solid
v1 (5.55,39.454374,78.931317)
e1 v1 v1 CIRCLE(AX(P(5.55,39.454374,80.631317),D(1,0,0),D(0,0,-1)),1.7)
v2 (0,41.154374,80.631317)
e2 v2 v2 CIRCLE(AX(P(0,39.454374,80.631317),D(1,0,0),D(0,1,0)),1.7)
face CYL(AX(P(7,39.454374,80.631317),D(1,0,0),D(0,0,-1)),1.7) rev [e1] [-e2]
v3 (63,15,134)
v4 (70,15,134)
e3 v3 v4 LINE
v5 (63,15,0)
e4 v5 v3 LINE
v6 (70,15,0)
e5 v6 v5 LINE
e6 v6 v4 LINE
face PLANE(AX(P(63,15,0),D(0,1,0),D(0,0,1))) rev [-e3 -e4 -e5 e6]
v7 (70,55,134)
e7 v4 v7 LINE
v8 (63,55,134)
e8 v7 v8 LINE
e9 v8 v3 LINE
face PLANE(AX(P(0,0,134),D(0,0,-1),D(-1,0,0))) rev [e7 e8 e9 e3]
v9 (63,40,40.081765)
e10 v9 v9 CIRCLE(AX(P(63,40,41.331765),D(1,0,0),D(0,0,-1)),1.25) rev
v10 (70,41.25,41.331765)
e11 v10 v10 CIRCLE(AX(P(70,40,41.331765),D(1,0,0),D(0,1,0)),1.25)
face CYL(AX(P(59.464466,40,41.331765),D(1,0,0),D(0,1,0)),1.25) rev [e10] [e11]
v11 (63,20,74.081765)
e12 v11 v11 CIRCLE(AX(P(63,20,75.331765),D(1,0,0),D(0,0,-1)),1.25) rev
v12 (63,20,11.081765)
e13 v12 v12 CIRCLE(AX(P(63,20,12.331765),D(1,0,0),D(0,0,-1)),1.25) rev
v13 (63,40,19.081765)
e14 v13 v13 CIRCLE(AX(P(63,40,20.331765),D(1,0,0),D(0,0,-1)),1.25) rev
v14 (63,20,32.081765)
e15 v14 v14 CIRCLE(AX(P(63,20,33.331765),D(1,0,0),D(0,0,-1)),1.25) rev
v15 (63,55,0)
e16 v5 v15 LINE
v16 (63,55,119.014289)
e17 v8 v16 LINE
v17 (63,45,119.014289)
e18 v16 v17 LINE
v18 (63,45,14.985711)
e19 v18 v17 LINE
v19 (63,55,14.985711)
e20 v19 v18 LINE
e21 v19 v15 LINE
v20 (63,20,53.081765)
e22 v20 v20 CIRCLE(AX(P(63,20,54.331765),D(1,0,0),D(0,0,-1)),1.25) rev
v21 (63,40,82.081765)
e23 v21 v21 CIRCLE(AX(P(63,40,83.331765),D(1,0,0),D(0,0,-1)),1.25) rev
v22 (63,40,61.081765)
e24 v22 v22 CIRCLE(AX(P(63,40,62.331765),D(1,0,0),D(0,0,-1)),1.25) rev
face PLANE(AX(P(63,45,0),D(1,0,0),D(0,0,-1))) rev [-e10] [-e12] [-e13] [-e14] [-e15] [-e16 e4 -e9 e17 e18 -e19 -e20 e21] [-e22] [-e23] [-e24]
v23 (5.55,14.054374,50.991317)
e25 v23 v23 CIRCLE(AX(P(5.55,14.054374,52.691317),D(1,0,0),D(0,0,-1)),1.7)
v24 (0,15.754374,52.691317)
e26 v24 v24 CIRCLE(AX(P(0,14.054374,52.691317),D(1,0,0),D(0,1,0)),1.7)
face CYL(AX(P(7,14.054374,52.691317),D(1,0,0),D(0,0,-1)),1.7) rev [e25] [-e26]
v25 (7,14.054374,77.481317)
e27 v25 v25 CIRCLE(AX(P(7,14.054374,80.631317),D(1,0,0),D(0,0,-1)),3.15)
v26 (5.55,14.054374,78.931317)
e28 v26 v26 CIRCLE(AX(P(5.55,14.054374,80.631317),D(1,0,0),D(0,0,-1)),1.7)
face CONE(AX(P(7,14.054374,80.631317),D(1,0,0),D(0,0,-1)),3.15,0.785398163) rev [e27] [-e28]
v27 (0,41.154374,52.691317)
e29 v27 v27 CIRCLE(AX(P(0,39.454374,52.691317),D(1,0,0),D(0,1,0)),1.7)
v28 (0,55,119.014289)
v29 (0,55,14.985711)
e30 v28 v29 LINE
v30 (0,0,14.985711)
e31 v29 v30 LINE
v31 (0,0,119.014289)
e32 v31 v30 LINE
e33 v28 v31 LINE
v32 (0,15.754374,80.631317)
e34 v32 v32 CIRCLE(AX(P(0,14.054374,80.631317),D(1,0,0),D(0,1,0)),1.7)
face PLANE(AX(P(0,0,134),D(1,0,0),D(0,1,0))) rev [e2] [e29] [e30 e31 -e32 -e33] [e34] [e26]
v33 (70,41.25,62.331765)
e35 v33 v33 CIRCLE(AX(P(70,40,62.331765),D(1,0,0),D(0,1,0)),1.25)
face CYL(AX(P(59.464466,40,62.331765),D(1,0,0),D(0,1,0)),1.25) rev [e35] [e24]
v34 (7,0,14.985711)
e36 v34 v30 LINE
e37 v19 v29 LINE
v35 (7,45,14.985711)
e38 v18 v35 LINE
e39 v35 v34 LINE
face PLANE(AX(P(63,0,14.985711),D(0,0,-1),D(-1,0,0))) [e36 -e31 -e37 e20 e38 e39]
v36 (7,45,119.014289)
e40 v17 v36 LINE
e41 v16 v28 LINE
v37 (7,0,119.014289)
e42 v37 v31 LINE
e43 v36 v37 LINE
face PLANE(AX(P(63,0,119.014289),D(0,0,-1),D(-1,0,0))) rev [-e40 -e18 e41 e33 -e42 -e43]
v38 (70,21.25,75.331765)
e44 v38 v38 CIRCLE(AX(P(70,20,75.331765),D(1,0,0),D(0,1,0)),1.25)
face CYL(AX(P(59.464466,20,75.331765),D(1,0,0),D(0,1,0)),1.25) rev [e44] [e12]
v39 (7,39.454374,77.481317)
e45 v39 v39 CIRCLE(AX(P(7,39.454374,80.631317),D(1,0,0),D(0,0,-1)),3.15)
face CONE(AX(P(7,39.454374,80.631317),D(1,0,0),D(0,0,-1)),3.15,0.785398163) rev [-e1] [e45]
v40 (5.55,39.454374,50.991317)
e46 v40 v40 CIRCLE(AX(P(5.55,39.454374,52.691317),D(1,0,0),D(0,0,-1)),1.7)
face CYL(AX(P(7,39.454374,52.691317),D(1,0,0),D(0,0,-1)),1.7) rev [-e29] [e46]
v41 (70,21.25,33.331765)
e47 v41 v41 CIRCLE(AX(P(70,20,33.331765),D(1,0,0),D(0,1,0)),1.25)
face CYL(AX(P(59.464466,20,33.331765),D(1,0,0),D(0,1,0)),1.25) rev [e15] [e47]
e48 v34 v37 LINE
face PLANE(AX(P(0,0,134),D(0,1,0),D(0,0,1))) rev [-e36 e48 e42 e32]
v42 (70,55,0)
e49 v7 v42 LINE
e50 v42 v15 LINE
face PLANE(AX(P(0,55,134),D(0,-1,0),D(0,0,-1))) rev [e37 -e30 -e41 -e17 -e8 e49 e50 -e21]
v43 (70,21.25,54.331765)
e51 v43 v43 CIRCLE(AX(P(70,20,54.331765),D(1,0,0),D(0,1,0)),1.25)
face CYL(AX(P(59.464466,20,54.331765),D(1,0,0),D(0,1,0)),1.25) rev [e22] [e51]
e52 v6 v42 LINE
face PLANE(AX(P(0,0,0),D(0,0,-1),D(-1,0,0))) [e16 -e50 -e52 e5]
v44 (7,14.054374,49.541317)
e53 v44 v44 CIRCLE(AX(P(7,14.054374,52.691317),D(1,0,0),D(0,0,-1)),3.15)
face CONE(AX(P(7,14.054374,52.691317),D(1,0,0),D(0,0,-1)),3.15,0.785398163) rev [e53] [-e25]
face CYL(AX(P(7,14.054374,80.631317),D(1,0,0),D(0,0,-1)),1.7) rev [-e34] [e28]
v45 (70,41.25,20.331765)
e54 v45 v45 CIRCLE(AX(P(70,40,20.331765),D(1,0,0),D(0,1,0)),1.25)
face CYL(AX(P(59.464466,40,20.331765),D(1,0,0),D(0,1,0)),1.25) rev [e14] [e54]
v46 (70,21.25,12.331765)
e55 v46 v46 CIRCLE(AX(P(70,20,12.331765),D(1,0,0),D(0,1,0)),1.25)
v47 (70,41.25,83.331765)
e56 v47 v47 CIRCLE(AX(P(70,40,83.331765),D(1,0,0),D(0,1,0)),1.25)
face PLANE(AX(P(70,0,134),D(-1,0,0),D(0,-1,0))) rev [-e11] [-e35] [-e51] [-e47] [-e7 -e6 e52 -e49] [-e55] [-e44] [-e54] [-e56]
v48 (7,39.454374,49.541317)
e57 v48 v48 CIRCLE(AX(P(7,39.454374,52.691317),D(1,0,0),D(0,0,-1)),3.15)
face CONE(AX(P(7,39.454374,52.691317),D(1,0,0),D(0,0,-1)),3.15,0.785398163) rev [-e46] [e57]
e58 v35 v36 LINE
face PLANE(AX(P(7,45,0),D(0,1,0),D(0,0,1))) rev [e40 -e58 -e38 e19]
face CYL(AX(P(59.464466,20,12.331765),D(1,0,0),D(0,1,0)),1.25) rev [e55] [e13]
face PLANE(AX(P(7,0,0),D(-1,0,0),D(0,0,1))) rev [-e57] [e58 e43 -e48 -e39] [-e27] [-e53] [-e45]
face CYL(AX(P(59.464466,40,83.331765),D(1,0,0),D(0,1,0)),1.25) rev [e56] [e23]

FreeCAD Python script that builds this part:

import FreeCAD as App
import Part
import Sketcher

doc = App.newDocument("Part")
body = doc.addObject("PartDesign::Body", "Body")

sketch1 = body.newObject("Sketcher::SketchObject", "Sketch")
sketch1.AttachmentSupport = (doc.getObject("XY_Plane"), [""])
sketch1.MapMode = "FlatFace"
sketch1.addGeometry([
    Part.LineSegment(App.Vector(0, 55, 0), App.Vector(0, 0, 0)),
    Part.LineSegment(App.Vector(0, 0, 0), App.Vector(70, 0, 0)),
    Part.LineSegment(App.Vector(70, 0, 0), App.Vector(70, 55, 0)),
    Part.LineSegment(App.Vector(70, 55, 0), App.Vector(0, 55, 0)),
], False)
sketch1.addConstraint([
    Sketcher.Constraint("Coincident", 0, 2, 1, 1),
    Sketcher.Constraint("Coincident", 1, 2, 2, 1),
    Sketcher.Constraint("Coincident", 2, 2, 3, 1),
    Sketcher.Constraint("Coincident", 3, 2, 0, 1),
    Sketcher.Constraint("Vertical", 0),
    Sketcher.Constraint("Horizontal", 1),
    Sketcher.Constraint("Vertical", 2),
    Sketcher.Constraint("Horizontal", 3),
    Sketcher.Constraint("Coincident", 0, 2, -1, 1),
    Sketcher.Constraint("DistanceX", 1, 1, 1, 2, 70.0),
    Sketcher.Constraint("DistanceY", 0, 2, 0, 1, 55.0),
])
pad1 = body.newObject("PartDesign::Pad", "Pad")
pad1.Profile = sketch1
pad1.Length = 134

sketch2 = body.newObject("Sketcher::SketchObject", "Sketch001")
sketch2.AttachmentSupport = (doc.getObject("XY_Plane"), [""])
sketch2.MapMode = "FlatFace"
sketch2.AttachmentOffset = App.Placement(App.Vector(0, 0, 134), App.Rotation())
sketch2.addGeometry([
    Part.LineSegment(App.Vector(7, 45, 0), App.Vector(7, 0, 0)),
    Part.LineSegment(App.Vector(7, 0, 0), App.Vector(70, 0, 0)),
    Part.LineSegment(App.Vector(70, 0, 0), App.Vector(70, 15, 0)),
    Part.LineSegment(App.Vector(70, 15, 0), App.Vector(63, 15, 0)),
    Part.LineSegment(App.Vector(63, 15, 0), App.Vector(63, 45, 0)),
    Part.LineSegment(App.Vector(63, 45, 0), App.Vector(7, 45, 0)),
], False)
sketch2.addConstraint([
    Sketcher.Constraint("Coincident", 0, 2, 1, 1),
    Sketcher.Constraint("Coincident", 1, 2, 2, 1),
    Sketcher.Constraint("Coincident", 2, 2, 3, 1),
    Sketcher.Constraint("Coincident", 3, 2, 4, 1),
    Sketcher.Constraint("Coincident", 4, 2, 5, 1),
    Sketcher.Constraint("Coincident", 5, 2, 0, 1),
    Sketcher.Constraint("Vertical", 0),
    Sketcher.Constraint("Horizontal", 1),
    Sketcher.Constraint("Vertical", 2),
    Sketcher.Constraint("Horizontal", 3),
    Sketcher.Constraint("Vertical", 4),
    Sketcher.Constraint("Horizontal", 5),
    Sketcher.Constraint("PointOnObject", 0, 2, -1),
    Sketcher.Constraint("DistanceX", 1, 1, 1, 2, 63.0),
    Sketcher.Constraint("DistanceX", 3, 2, 3, 1, 7.0),
    Sketcher.Constraint("DistanceY", 0, 2, 0, 1, 45.0),
    Sketcher.Constraint("DistanceY", 2, 1, 2, 2, 15.0),
    Sketcher.Constraint("DistanceX", -1, 1, 0, 2, 7.0),
])
pocket1 = body.newObject("PartDesign::Pocket", "Pocket")
pocket1.Profile = sketch2
pocket1.Type = "ThroughAll"
pocket1.Midplane = True

sketch3 = body.newObject("Sketcher::SketchObject", "Sketch002")
sketch3.AttachmentSupport = (doc.getObject("YZ_Plane"), [""])
sketch3.MapMode = "FlatFace"
sketch3.AttachmentOffset = App.Placement(App.Vector(0, 0, 70), App.Rotation())
sketch3.addGeometry([
    Part.Circle(App.Vector(40, 83.3, 0), App.Vector(0, 0, 1), 1.2),
    Part.Circle(App.Vector(20, 75.3, 0), App.Vector(0, 0, 1), 1.2),
    Part.Circle(App.Vector(40, 62.3, 0), App.Vector(0, 0, 1), 1.2),
    Part.Circle(App.Vector(20, 54.3, 0), App.Vector(0, 0, 1), 1.2),
    Part.Circle(App.Vector(40, 41.3, 0), App.Vector(0, 0, 1), 1.2),
    Part.Circle(App.Vector(20, 33.3, 0), App.Vector(0, 0, 1), 1.2),
    Part.Circle(App.Vector(40, 20.3, 0), App.Vector(0, 0, 1), 1.2),
    Part.Circle(App.Vector(20, 12.3, 0), App.Vector(0, 0, 1), 1.2),
], False)
sketch3.addConstraint([
    Sketcher.Constraint("Equal", 0, 1),
    Sketcher.Constraint("Equal", 1, 2),
    Sketcher.Constraint("Equal", 2, 3),
    Sketcher.Constraint("Equal", 3, 4),
    Sketcher.Constraint("Equal", 4, 5),
    Sketcher.Constraint("Equal", 5, 6),
    Sketcher.Constraint("Equal", 6, 7),
    Sketcher.Constraint("Vertical", 0, 3, 2, 3),
    Sketcher.Constraint("Vertical", 1, 3, 3, 3),
    Sketcher.Constraint("Vertical", 2, 3, 4, 3),
    Sketcher.Constraint("Vertical", 3, 3, 5, 3),
    Sketcher.Constraint("Vertical", 4, 3, 6, 3),
    Sketcher.Constraint("Vertical", 5, 3, 7, 3),
    Sketcher.Constraint("Diameter", 0, 2.5),
    Sketcher.Constraint("DistanceX", -1, 1, 0, 3, 40.0),
    Sketcher.Constraint("DistanceX", -1, 1, 1, 3, 20.0),
    Sketcher.Constraint("DistanceY", 1, 3, 0, 3, 8.0),
    Sketcher.Constraint("DistanceY", 2, 3, 0, 3, 21.0),
    Sketcher.Constraint("DistanceY", 3, 3, 1, 3, 21.0),
    Sketcher.Constraint("DistanceY", 4, 3, 2, 3, 21.0),
    Sketcher.Constraint("DistanceY", 5, 3, 3, 3, 21.0),
    Sketcher.Constraint("DistanceY", 6, 3, 4, 3, 21.0),
    Sketcher.Constraint("DistanceY", 7, 3, 5, 3, 21.0),
    Sketcher.Constraint("DistanceY", -1, 1, 0, 3, 83.331765),
])
pocket2 = body.newObject("PartDesign::Pocket", "Pocket001")
pocket2.Profile = sketch3
pocket2.Length = 7

sketch4 = body.newObject("Sketcher::SketchObject", "Sketch003")
sketch4.AttachmentSupport = (doc.getObject("YZ_Plane"), [""])
sketch4.MapMode = "FlatFace"
sketch4.addGeometry([
    Part.LineSegment(App.Vector(55, 0, 0), App.Vector(0, 0, 0)),
    Part.LineSegment(App.Vector(0, 0, 0), App.Vector(0, 15, 0)),
    Part.LineSegment(App.Vector(0, 15, 0), App.Vector(55, 15, 0)),
    Part.LineSegment(App.Vector(55, 15, 0), App.Vector(55, 0, 0)),
    Part.LineSegment(App.Vector(55, 119, 0), App.Vector(0, 119, 0)),
    Part.LineSegment(App.Vector(0, 119, 0), App.Vector(0, 134, 0)),
    Part.LineSegment(App.Vector(0, 134, 0), App.Vector(55, 134, 0)),
    Part.LineSegment(App.Vector(55, 134, 0), App.Vector(55, 119, 0)),
], False)
sketch4.addConstraint([
    Sketcher.Constraint("Coincident", 0, 2, 1, 1),
    Sketcher.Constraint("Coincident", 1, 2, 2, 1),
    Sketcher.Constraint("Coincident", 2, 2, 3, 1),
    Sketcher.Constraint("Coincident", 3, 2, 0, 1),
    Sketcher.Constraint("Coincident", 4, 2, 5, 1),
    Sketcher.Constraint("Coincident", 5, 2, 6, 1),
    Sketcher.Constraint("Coincident", 6, 2, 7, 1),
    Sketcher.Constraint("Coincident", 7, 2, 4, 1),
    Sketcher.Constraint("Horizontal", 0),
    Sketcher.Constraint("Vertical", 1),
    Sketcher.Constraint("Horizontal", 2),
    Sketcher.Constraint("Vertical", 3),
    Sketcher.Constraint("Horizontal", 4),
    Sketcher.Constraint("Vertical", 5),
    Sketcher.Constraint("Horizontal", 6),
    Sketcher.Constraint("Vertical", 7),
    Sketcher.Constraint("Coincident", 0, 2, -1, 1),
    Sketcher.Constraint("PointOnObject", 4, 2, -2),
    Sketcher.Constraint("Vertical", 3, 2, 6, 2),
    Sketcher.Constraint("Equal", 3, 5),
    Sketcher.Constraint("DistanceX", 0, 2, 0, 1, 55.0),
    Sketcher.Constraint("DistanceY", -1, 1, 5, 2, 134.0),
    Sketcher.Constraint("DistanceY", 1, 1, 1, 2, 14.985711),
])
pocket3 = body.newObject("PartDesign::Pocket", "Pocket002")
pocket3.Profile = sketch4
pocket3.Length = 63
pocket3.Reversed = True

sketch5 = body.newObject("Sketcher::SketchObject", "Sketch004")
sketch5.AttachmentSupport = (doc.getObject("YZ_Plane"), [""])
sketch5.MapMode = "FlatFace"
sketch5.AttachmentOffset = App.Placement(App.Vector(0, 0, 7), App.Rotation())
sketch5.addGeometry([
    Part.Circle(App.Vector(39.5, 52.7, 0), App.Vector(0, 0, 1), 1.7),
    Part.Circle(App.Vector(14.1, 52.7, 0), App.Vector(0, 0, 1), 1.7),
    Part.Circle(App.Vector(14.1, 80.6, 0), App.Vector(0, 0, 1), 1.7),
    Part.Circle(App.Vector(39.5, 80.6, 0), App.Vector(0, 0, 1), 1.7),
], False)
sketch5.addConstraint([
    Sketcher.Constraint("Equal", 0, 1),
    Sketcher.Constraint("Equal", 1, 2),
    Sketcher.Constraint("Equal", 2, 3),
    Sketcher.Constraint("Horizontal", 0, 3, 1, 3),
    Sketcher.Constraint("Horizontal", 2, 3, 3, 3),
    Sketcher.Constraint("Vertical", 1, 3, 2, 3),
    Sketcher.Constraint("Vertical", 0, 3, 3, 3),
    Sketcher.Constraint("Diameter", 0, 3.4),
    Sketcher.Constraint("DistanceX", 1, 3, 0, 3, 25.4),
    Sketcher.Constraint("DistanceY", 1, 3, 2, 3, 27.94),
    Sketcher.Constraint("DistanceX", -1, 1, 0, 3, 39.454374),
    Sketcher.Constraint("DistanceY", -1, 1, 0, 3, 52.691317),
])
doc.recompute()
hole = body.newObject("PartDesign::Hole", "Hole")
hole.Profile = sketch5
hole.ThreadType = "None"
hole.Diameter = 3.4
hole.DepthType = "Dimension"
hole.Depth = 10
hole.DrillPoint = "Angled"
hole.DrillPointAngle = 118
hole.HoleCutType = "Countersink"
hole.HoleCutDiameter = 6.3
hole.HoleCutCountersinkAngle = 90

doc.recompute()
